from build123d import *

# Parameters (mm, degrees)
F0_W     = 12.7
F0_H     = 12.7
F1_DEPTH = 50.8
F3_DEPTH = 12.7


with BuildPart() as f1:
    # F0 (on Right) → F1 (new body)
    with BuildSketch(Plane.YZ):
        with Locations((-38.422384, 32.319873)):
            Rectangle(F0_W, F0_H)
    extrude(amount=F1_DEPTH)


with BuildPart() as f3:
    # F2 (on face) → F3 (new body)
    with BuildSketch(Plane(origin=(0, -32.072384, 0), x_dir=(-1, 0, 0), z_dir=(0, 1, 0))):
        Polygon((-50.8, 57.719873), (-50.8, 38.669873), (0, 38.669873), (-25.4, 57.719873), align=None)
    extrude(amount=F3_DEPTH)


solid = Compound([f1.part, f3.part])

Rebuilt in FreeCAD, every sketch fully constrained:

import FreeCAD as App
import Part
import Sketcher

V = App.Vector
Q = App.Units.Quantity


def add_polygon(sketch, points):
    """Adds a closed chain of lines whose ends are joined by coincident constraints."""
    first, n = sketch.GeometryCount, len(points)
    for a, b in zip(points, points[1:] + points[:1]):
        sketch.addGeometry(Part.LineSegment(App.Vector(*a, 0), App.Vector(*b, 0)), False)
    for i in range(n):
        sketch.addConstraint(Sketcher.Constraint("Coincident", first + i, 2, first + (i + 1) % n, 1))

doc = App.newDocument("Part")
body = doc.addObject("PartDesign::Body", "Body")

# Sketch on YZ plane
sketch1 = doc.addObject("Sketcher::SketchObject", "Sketch")
body.addObject(sketch1)
sketch1.AttachmentSupport = (doc.YZ_Plane, [""])
sketch1.MapMode = "FlatFace"
add_polygon(sketch1, [(-44.772384, 38.669873), (-44.772384, 25.969873), (-32.072384, 25.969873), (-32.072384, 38.669873)])  # lines 0-3
sketch1.addConstraint([
    Sketcher.Constraint("Vertical", 0),
    Sketcher.Constraint("Horizontal", 1),
    Sketcher.Constraint("Vertical", 2),
    Sketcher.Constraint("Horizontal", 3),
    Sketcher.Constraint("Equal", 3, 0),
    Sketcher.Constraint("DistanceX", 1, 1, 1, 2, Q("0.5 in")),
    Sketcher.Constraint("DistanceX", 0, 2, -1, 1, Q("44.772384 mm")),
    Sketcher.Constraint("DistanceY", -1, 1, 0, 2, Q("25.969873 mm")),
])
pad1 = doc.addObject("PartDesign::Pad", "Pad")
body.addObject(pad1)
pad1.Profile = sketch1
pad1.Length = Q("2 in")
body2 = doc.addObject("PartDesign::Body", "Body001")

# Sketch on XZ plane
sketch2 = doc.addObject("Sketcher::SketchObject", "Sketch001")
body2.addObject(sketch2)
sketch2.AttachmentSupport = (doc.getObject("XZ_Plane001"), [""])
sketch2.MapMode = "FlatFace"
sketch2.AttachmentOffset = App.Placement(V(0, 0, 32.072384), App.Rotation())
add_polygon(sketch2, [(50.8, 57.719873), (50.8, 38.669873), (0, 38.669873), (25.4, 57.719873)])  # lines 0-3
sketch2.addConstraint([
    Sketcher.Constraint("Vertical", 0),
    Sketcher.Constraint("Horizontal", 1),
    Sketcher.Constraint("Horizontal", 3),
    Sketcher.Constraint("PointOnObject", 1, 2, -2),
    Sketcher.Constraint("DistanceX", 1, 2, 1, 1, Q("2 in")),
    Sketcher.Constraint("DistanceX", 3, 1, 3, 2, Q("1 in")),
    Sketcher.Constraint("DistanceY", 0, 2, 0, 1, Q("0.75 in")),
    Sketcher.Constraint("DistanceY", -1, 1, 0, 2, Q("38.669873 mm")),
])
pad2 = doc.addObject("PartDesign::Pad", "Pad001")
body2.addObject(pad2)
pad2.Profile = sketch2
pad2.Length = Q("0.5 in")
pad2.Reversed = True

doc.recompute()
